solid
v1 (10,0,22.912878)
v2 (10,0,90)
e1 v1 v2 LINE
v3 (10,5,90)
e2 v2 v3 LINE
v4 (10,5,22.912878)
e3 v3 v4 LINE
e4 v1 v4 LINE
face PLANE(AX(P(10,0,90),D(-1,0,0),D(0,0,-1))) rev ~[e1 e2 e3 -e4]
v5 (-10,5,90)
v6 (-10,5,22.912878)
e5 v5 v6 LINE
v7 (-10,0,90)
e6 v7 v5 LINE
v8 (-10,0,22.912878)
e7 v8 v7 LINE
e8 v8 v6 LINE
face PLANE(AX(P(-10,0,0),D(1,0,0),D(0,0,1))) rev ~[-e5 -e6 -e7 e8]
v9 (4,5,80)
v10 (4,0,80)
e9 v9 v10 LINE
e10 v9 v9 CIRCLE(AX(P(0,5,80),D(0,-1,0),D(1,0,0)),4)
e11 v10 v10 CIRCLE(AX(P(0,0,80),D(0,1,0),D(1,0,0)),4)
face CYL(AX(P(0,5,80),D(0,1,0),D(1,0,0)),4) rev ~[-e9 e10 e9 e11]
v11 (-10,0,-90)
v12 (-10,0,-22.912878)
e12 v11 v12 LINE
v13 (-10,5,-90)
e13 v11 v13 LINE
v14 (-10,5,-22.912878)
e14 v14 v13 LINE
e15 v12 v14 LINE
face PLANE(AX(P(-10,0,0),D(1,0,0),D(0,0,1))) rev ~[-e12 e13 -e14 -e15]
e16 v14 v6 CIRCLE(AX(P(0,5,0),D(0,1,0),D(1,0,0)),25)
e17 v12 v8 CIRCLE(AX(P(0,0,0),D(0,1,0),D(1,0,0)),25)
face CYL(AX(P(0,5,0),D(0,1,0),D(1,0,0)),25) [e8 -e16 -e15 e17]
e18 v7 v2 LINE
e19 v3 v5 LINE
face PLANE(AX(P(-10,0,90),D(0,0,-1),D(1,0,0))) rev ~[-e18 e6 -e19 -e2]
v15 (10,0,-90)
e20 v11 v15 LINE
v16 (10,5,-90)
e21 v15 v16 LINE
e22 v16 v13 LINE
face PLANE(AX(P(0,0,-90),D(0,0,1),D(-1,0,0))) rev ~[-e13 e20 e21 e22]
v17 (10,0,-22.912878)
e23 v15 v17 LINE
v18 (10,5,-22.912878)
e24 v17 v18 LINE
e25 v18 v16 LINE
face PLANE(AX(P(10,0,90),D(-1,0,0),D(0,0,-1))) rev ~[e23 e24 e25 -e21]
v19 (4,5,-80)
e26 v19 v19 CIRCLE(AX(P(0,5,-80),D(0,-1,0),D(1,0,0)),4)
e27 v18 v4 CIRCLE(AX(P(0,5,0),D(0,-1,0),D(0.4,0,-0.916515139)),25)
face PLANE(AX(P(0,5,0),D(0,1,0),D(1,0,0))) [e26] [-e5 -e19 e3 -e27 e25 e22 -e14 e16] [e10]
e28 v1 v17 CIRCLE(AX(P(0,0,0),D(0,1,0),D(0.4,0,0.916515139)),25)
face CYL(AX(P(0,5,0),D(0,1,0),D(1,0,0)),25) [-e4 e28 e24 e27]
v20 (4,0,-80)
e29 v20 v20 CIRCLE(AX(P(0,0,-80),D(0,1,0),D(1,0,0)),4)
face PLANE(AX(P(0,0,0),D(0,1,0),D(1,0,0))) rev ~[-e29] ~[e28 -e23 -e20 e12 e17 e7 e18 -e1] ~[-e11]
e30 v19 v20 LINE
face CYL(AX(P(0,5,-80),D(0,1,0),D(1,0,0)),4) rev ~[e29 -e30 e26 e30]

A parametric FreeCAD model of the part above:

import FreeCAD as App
import Part
import Sketcher

V = App.Vector


def add_polygon(sketch, points):
    """Adds a closed chain of lines whose ends are joined by coincident constraints."""
    first, n = sketch.GeometryCount, len(points)
    for a, b in zip(points, points[1:] + points[:1]):
        sketch.addGeometry(Part.LineSegment(App.Vector(*a, 0), App.Vector(*b, 0)), False)
    for i in range(n):
        sketch.addConstraint(Sketcher.Constraint("Coincident", first + i, 2, first + (i + 1) % n, 1))

doc = App.newDocument("Part")
body = doc.addObject("PartDesign::Body", "Body")

sketch1 = body.newObject("Sketcher::SketchObject", "Sketch")
sketch1.AttachmentSupport = (doc.getObject("XZ_Plane"), [""])
sketch1.MapMode = "FlatFace"
add_polygon(sketch1, [(-10, 90), (10, 90), (10, -90), (-10, -90)])
sketch1.addConstraint(Sketcher.Constraint("Horizontal", 0))
sketch1.addConstraint(Sketcher.Constraint("Vertical", 1))
sketch1.addConstraint(Sketcher.Constraint("Horizontal", 2))
sketch1.addConstraint(Sketcher.Constraint("Vertical", 3))
sketch1.addConstraint(Sketcher.Constraint("Symmetric", 0, 2, 2, 2, -1, 1))
sketch1.addConstraint(Sketcher.Constraint("DistanceX", 0, 1, 0, 2, 20.0))
sketch1.addConstraint(Sketcher.Constraint("DistanceY", 1, 2, 1, 1, 180.0))
pad1 = body.newObject("PartDesign::Pad", "Pad")
pad1.Profile = sketch1
pad1.Length = 5
pad1.Reversed = True

sketch2 = body.newObject("Sketcher::SketchObject", "Sketch001")
sketch2.AttachmentSupport = (doc.getObject("XZ_Plane"), [""])
sketch2.MapMode = "FlatFace"
sketch2.AttachmentOffset = App.Placement(V(0, 0, -5), App.Rotation())
sketch2.addGeometry(Part.Circle(V(0, -80, 0), V(0, 0, 1), 4), False)
sketch2.addGeometry(Part.Circle(V(0, 80, 0), V(0, 0, 1), 4), False)
sketch2.addConstraint(Sketcher.Constraint("Equal", 0, 1))
sketch2.addConstraint(Sketcher.Constraint("Symmetric", 0, 3, 1, 3, -1, 1))
sketch2.addConstraint(Sketcher.Constraint("PointOnObject", 0, 3, -2))
sketch2.addConstraint(Sketcher.Constraint("Diameter", 0, 8.0))
sketch2.addConstraint(Sketcher.Constraint("DistanceY", 0, 3, -1, 1, 80.0))
pocket1 = body.newObject("PartDesign::Pocket", "Pocket")
pocket1.Profile = sketch2
pocket1.Length = 5
pocket1.Reversed = True

sketch3 = body.newObject("Sketcher::SketchObject", "Sketch002")
sketch3.AttachmentSupport = (doc.getObject("XZ_Plane"), [""])
sketch3.MapMode = "FlatFace"
sketch3.AttachmentOffset = App.Placement(V(0, 0, -5), App.Rotation())
sketch3.addGeometry(Part.Circle(V(0, 0, 0), V(0, 0, 1), 25), False)
sketch3.addConstraint(Sketcher.Constraint("Coincident", 0, 3, -1, 1))
sketch3.addConstraint(Sketcher.Constraint("Diameter", 0, 50.0))
pad2 = body.newObject("PartDesign::Pad", "Pad001")
pad2.Profile = sketch3
pad2.Length = 5

doc.recompute()
